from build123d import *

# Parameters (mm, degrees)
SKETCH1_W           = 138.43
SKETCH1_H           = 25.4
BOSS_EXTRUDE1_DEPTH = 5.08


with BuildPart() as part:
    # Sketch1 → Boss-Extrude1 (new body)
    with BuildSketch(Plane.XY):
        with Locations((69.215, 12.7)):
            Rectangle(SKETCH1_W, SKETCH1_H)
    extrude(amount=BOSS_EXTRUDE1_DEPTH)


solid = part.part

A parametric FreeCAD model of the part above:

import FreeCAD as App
import Part
import Sketcher

V = App.Vector
Q = App.Units.Quantity


def add_polygon(sketch, points):
    """Adds a closed chain of lines whose ends are joined by coincident constraints."""
    first, n = sketch.GeometryCount, len(points)
    for a, b in zip(points, points[1:] + points[:1]):
        sketch.addGeometry(Part.LineSegment(App.Vector(*a, 0), App.Vector(*b, 0)), False)
    for i in range(n):
        sketch.addConstraint(Sketcher.Constraint("Coincident", first + i, 2, first + (i + 1) % n, 1))

doc = App.newDocument("Part")
params = doc.addObject("Spreadsheet::Sheet", "Params")
for row, (alias, value) in enumerate([
    ("sketch1_height", "1 in"),
    ("sketch1_width", "5.45 in"),
    ("pad1_length", "0.2 in"),
], start=1):
    params.set(f"A{row}", alias)
    params.set(f"B{row}", "=" + value)
    params.setAlias(f"B{row}", alias)

body = doc.addObject("PartDesign::Body", "Body")

sketch1 = body.newObject("Sketcher::SketchObject", "Sketch")
sketch1.AttachmentSupport = (doc.getObject("XY_Plane"), [""])
sketch1.MapMode = "FlatFace"
add_polygon(sketch1, [(0, 25), (0, 0), (138, 0), (138, 25)])
sketch1.addConstraint([
    Sketcher.Constraint("Vertical", 0),
    Sketcher.Constraint("Horizontal", 1),
    Sketcher.Constraint("Vertical", 2),
    Sketcher.Constraint("Horizontal", 3),
    Sketcher.Constraint("Coincident", 0, 2, -1, 1),
    Sketcher.Constraint("DistanceY", 0, 2, 0, 1, Q("1 in")),
    Sketcher.Constraint("DistanceX", 1, 1, 1, 2, Q("5.45 in")),
])
sketch1.setExpression("Constraints[9]", "Params.sketch1_height")
sketch1.setExpression("Constraints[10]", "Params.sketch1_width")
pad1 = body.newObject("PartDesign::Pad", "Pad")
pad1.Profile = sketch1
pad1.setExpression("Length", "Params.pad1_length")

doc.recompute()
